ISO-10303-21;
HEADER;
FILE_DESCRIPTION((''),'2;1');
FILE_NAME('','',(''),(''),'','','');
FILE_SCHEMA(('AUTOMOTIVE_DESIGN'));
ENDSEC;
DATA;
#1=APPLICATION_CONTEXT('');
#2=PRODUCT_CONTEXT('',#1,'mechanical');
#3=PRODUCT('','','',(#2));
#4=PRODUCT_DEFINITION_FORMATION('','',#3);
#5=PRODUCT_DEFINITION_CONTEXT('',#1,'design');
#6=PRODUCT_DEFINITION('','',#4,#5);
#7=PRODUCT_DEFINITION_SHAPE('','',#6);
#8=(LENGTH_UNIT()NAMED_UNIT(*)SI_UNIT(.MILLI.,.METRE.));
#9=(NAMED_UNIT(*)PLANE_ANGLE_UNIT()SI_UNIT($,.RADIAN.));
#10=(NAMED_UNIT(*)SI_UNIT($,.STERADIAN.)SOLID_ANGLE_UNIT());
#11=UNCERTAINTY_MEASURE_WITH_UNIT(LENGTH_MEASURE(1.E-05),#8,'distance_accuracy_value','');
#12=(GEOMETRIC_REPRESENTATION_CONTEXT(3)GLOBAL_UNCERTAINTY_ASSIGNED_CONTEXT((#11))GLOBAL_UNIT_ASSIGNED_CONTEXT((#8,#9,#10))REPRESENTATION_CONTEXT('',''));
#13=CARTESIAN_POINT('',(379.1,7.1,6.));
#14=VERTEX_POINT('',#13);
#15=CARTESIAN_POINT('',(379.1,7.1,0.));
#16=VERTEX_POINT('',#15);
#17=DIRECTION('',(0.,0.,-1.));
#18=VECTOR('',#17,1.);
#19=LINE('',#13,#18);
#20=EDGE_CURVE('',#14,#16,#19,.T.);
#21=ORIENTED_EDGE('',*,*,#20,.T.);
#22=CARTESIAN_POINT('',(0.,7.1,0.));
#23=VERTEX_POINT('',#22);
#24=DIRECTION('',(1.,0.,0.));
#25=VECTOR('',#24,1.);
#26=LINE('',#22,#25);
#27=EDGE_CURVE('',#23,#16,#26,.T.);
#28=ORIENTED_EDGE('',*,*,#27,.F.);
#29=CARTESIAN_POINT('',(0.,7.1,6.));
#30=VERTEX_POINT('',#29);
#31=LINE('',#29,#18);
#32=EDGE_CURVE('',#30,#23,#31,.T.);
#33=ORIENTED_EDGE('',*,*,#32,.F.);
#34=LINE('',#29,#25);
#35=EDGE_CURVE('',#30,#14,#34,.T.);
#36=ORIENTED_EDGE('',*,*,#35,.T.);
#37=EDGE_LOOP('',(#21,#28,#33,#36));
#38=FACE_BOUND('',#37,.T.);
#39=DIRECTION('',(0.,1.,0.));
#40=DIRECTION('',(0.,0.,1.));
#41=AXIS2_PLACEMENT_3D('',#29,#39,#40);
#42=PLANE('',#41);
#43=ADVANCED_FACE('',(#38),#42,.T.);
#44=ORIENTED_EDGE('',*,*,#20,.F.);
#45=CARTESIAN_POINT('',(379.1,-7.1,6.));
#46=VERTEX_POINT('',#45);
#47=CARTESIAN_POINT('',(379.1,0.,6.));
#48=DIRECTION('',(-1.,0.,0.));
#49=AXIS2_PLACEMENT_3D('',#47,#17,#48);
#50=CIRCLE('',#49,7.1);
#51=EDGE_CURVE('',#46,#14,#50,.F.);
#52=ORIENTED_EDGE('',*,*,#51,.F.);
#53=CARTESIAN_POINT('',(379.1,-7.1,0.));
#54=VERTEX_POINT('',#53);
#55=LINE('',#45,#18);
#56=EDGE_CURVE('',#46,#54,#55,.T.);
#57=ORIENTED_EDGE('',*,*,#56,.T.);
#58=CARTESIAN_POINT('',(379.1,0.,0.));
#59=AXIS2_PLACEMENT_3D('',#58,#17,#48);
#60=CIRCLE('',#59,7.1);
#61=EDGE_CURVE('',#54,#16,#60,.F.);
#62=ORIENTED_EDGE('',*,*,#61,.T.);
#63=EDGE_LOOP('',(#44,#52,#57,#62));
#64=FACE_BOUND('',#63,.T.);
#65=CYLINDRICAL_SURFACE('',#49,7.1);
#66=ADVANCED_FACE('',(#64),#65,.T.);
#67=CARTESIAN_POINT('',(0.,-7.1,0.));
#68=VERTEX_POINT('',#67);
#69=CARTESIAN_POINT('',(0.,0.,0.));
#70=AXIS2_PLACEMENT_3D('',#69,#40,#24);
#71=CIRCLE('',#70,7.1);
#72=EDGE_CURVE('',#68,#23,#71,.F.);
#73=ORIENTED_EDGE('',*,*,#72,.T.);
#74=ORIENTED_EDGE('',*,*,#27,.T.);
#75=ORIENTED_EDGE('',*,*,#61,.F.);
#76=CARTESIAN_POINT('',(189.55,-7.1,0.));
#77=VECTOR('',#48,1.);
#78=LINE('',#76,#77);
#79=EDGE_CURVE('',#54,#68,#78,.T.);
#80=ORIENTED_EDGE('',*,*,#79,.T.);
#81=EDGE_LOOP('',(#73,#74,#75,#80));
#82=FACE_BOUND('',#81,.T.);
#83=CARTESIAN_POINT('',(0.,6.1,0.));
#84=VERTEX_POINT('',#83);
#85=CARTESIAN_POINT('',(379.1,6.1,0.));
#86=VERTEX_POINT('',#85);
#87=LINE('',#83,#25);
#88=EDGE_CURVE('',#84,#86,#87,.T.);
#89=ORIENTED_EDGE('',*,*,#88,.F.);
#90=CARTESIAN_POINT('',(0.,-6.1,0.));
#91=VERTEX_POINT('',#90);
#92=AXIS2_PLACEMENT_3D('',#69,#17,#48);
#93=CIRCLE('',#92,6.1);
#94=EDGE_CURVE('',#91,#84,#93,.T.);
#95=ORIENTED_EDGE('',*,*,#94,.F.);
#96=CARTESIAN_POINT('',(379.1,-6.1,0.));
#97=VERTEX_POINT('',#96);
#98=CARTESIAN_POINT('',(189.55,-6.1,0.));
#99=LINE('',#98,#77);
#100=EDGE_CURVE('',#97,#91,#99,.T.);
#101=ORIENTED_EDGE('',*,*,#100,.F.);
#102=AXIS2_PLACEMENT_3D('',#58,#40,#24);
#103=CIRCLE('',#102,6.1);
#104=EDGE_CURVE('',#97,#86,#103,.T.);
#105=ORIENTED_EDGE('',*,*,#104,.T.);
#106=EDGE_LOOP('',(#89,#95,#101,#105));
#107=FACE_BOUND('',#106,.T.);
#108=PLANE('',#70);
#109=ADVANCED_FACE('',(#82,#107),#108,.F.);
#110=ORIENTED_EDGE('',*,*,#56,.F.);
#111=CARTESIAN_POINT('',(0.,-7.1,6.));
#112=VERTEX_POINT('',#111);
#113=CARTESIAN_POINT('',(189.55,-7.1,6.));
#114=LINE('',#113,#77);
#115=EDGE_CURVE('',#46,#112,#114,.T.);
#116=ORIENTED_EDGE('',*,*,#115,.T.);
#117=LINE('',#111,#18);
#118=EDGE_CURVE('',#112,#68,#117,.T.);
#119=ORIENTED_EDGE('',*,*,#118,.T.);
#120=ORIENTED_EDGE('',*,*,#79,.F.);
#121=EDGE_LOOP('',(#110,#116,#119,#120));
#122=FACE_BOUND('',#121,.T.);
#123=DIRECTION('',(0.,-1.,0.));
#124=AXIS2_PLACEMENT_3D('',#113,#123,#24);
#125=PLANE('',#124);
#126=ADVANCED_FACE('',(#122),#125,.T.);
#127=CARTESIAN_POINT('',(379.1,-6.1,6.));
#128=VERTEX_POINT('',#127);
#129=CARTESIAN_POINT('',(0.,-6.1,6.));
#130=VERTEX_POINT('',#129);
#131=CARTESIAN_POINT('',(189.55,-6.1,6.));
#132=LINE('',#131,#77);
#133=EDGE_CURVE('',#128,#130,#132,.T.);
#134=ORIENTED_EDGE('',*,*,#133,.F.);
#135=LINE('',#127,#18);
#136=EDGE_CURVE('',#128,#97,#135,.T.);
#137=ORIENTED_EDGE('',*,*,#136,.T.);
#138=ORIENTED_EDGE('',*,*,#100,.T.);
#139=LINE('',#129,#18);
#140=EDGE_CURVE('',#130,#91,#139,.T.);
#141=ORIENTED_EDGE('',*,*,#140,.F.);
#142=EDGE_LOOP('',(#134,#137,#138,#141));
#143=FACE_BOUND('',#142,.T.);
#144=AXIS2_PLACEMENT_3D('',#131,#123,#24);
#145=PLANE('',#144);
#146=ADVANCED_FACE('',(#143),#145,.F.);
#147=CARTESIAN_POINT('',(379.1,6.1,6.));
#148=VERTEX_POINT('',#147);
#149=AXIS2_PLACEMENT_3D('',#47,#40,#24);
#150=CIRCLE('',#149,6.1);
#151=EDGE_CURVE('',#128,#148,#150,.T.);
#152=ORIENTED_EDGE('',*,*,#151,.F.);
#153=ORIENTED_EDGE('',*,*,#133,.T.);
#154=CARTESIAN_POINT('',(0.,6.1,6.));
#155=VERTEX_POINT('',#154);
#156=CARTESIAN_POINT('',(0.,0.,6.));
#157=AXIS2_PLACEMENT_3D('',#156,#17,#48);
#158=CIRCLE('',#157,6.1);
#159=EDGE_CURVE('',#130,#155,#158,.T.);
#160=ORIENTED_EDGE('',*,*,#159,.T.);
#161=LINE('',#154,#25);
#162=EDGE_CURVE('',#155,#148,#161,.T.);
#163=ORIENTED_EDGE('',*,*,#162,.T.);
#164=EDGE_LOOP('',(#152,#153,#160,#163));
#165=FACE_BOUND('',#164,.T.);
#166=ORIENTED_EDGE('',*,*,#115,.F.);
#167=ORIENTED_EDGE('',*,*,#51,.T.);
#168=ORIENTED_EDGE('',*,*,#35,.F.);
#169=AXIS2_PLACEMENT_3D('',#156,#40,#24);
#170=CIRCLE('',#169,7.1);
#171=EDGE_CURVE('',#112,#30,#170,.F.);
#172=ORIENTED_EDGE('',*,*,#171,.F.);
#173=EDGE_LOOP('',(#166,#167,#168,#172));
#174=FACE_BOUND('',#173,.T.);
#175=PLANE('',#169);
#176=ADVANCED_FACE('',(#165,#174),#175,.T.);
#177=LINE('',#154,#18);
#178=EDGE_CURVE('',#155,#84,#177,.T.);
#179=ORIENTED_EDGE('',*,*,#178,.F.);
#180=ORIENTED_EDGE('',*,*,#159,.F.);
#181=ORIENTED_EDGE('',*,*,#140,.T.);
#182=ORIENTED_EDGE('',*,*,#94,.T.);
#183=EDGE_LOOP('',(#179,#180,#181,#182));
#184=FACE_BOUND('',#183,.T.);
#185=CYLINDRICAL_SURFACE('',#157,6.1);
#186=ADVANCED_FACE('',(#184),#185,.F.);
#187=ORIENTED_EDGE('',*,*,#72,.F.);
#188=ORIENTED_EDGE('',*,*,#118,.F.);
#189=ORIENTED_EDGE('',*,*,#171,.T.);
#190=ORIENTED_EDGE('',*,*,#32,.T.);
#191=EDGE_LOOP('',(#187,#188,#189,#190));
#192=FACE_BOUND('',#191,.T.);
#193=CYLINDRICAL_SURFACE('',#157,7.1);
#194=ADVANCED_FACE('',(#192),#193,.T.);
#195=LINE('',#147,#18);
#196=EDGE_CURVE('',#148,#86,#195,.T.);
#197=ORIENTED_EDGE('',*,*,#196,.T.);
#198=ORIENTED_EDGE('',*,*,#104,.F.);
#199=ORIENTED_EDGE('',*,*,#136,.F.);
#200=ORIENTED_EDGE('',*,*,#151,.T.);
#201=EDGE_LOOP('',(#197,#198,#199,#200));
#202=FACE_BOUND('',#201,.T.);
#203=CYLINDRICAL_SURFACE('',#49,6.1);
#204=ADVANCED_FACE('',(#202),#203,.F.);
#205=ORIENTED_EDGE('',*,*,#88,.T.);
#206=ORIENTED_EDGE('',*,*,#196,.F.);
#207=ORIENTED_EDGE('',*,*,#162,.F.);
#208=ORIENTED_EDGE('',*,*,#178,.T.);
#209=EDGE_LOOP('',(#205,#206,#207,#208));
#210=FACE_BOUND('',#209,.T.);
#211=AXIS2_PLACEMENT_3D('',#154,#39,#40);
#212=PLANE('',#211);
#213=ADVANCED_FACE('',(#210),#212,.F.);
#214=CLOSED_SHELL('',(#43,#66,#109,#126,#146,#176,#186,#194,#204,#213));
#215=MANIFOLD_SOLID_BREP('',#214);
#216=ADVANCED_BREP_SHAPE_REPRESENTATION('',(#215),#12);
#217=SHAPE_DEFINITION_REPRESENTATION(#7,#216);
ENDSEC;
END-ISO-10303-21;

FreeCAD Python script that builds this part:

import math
import FreeCAD as App
import Part
import Sketcher
Q = App.Units.Quantity

doc = App.newDocument("Part")
params = doc.addObject("Spreadsheet::Sheet", "Params")
for row, (alias, value) in enumerate([
    ("sketch1_radius", "6.1 mm"),
    ("sketch1_radius2", "7.1 mm"),
    ("sketch1_width", "189.55 mm"),
    ("pad1_length", "6 mm"),
], start=1):
    params.set(f"A{row}", alias)
    params.set(f"B{row}", "=" + value)
    params.setAlias(f"B{row}", alias)

body = doc.addObject("PartDesign::Body", "Body")

# Sketch on XY plane
sketch1 = body.newObject("Sketcher::SketchObject", "Sketch")
sketch1.AttachmentSupport = (doc.getObject("XY_Plane"), [""])
sketch1.MapMode = "FlatFace"
sketch1.addGeometry([
    Part.LineSegment(App.Vector(189.6, -6.1, 0), App.Vector(0, -6.1, 0)),  # 0
    Part.ArcOfCircle(Part.Circle(App.Vector(0, 0, 0), App.Vector(0, 0, 1), 6.1), math.radians(90), math.radians(270)),  # 1
    Part.LineSegment(App.Vector(0, 6.1, 0), App.Vector(189.6, 6.1, 0)),  # 2
    Part.LineSegment(App.Vector(189.6, 6.1, 0), App.Vector(189.6, 7.1, 0)),  # 3
    Part.LineSegment(App.Vector(189.6, 7.1, 0), App.Vector(0, 7.1, 0)),  # 4
    Part.ArcOfCircle(Part.Circle(App.Vector(0, 0, 0), App.Vector(0, 0, 1), 7.1), math.radians(90), math.radians(270)),  # 5
    Part.LineSegment(App.Vector(0, -7.1, 0), App.Vector(189.6, -7.1, 0)),  # 6
    Part.LineSegment(App.Vector(189.6, -7.1, 0), App.Vector(189.6, -6.1, 0)),  # 7
], False)
sketch1.addConstraint([
    Sketcher.Constraint("Tangent", 0, 2, 1, 2),
    Sketcher.Constraint("Tangent", 1, 1, 2, 1),
    Sketcher.Constraint("Coincident", 2, 2, 3, 1),
    Sketcher.Constraint("Coincident", 3, 2, 4, 1),
    Sketcher.Constraint("Tangent", 4, 2, 5, 1),
    Sketcher.Constraint("Tangent", 5, 2, 6, 1),
    Sketcher.Constraint("Coincident", 6, 2, 7, 1),
    Sketcher.Constraint("Coincident", 7, 2, 0, 1),
    Sketcher.Constraint("Horizontal", 0),
    Sketcher.Constraint("Horizontal", 2),
    Sketcher.Constraint("Vertical", 3),
    Sketcher.Constraint("Horizontal", 4),
    Sketcher.Constraint("Horizontal", 6),
    Sketcher.Constraint("Vertical", 7),
    Sketcher.Constraint("Coincident", 1, 3, -1, 1),
    Sketcher.Constraint("Coincident", 5, 3, -1, 1),
    Sketcher.Constraint("Vertical", 3, 2, 6, 2),
    Sketcher.Constraint("Radius", 1, Q("6.1 mm")),
    Sketcher.Constraint("Radius", 5, Q("7.1 mm")),
    Sketcher.Constraint("DistanceX", 0, 2, 0, 1, Q("189.55 mm")),
])
sketch1.setExpression("Constraints[17]", "Params.sketch1_radius")
sketch1.setExpression("Constraints[18]", "Params.sketch1_radius2")
sketch1.setExpression("Constraints[19]", "Params.sketch1_width")
pad1 = body.newObject("PartDesign::Pad", "Pad")
pad1.Profile = sketch1
pad1.setExpression("Length", "Params.pad1_length")
doc.recompute()

datumplane = body.newObject("PartDesign::Plane", "DatumPlane")
datumplane.AttachmentSupport = (doc.getObject("YZ_Plane"), [""])
datumplane.MapMode = "FlatFace"
datumplane.AttachmentOffset = App.Placement(App.Vector(0, 0, 189.55), App.Rotation())
mirrored = body.newObject("PartDesign::Mirrored", "Mirrored")
mirrored.Originals = [pad1]
mirrored.MirrorPlane = (datumplane, [""])
body.Tip = mirrored

doc.recompute()
